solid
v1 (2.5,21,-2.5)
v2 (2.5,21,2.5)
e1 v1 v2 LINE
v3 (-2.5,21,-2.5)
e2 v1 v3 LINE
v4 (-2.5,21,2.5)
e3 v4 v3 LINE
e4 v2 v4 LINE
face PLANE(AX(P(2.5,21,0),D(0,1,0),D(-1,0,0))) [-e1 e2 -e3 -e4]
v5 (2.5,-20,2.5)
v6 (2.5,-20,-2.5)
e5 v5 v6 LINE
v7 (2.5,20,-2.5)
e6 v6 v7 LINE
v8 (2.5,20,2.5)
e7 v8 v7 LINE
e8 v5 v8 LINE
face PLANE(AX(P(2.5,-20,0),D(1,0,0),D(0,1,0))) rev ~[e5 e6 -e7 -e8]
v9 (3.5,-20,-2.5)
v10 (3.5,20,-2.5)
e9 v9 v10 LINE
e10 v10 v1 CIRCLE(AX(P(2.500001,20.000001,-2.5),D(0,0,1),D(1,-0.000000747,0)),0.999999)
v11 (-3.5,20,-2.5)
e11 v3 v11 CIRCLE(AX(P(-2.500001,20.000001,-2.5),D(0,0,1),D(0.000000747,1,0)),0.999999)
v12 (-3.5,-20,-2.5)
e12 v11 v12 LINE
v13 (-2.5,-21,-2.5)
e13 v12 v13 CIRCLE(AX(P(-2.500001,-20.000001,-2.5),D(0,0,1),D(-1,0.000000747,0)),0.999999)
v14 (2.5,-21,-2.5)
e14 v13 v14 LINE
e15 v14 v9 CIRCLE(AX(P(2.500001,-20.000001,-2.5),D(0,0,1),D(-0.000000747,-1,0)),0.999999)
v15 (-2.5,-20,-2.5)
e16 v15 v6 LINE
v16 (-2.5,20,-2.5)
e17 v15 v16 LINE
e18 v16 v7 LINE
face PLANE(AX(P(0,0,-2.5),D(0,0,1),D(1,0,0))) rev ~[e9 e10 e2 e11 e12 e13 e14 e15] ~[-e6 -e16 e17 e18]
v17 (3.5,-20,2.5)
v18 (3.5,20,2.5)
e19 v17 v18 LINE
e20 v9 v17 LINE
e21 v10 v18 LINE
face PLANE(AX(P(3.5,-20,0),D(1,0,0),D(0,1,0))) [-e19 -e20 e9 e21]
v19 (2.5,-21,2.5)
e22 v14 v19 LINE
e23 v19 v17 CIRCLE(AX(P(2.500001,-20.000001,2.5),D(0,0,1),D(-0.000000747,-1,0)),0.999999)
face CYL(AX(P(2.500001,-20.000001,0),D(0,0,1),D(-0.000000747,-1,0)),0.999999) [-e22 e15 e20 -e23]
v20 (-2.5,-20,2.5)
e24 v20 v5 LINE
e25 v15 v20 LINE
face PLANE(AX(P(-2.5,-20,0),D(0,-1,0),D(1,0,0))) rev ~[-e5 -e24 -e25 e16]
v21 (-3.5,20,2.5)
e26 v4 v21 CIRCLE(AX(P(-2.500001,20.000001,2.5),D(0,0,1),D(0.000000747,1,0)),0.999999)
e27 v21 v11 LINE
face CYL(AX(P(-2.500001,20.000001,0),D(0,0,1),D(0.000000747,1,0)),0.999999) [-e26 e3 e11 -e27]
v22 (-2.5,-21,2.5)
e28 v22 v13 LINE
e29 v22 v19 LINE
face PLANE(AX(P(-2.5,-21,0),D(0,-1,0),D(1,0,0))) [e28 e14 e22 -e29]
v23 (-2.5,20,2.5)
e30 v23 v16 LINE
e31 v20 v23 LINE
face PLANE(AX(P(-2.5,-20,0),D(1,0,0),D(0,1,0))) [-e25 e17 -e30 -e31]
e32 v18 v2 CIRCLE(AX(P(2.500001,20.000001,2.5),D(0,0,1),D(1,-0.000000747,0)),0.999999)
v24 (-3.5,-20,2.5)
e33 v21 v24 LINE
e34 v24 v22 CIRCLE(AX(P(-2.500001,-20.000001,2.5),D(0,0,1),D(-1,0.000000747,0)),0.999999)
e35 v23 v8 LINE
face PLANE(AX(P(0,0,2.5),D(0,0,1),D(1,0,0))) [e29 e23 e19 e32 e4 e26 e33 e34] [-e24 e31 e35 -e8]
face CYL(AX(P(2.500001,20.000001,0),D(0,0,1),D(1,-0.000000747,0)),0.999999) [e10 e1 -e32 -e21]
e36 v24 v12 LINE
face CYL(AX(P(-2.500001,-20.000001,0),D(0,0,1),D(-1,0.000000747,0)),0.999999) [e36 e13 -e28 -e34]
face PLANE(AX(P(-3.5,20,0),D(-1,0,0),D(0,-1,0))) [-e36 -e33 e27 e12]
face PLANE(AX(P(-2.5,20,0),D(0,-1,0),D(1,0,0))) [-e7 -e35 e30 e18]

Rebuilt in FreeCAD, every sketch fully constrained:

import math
import FreeCAD as App
import Part
import Sketcher
from FreeCAD import Vector

doc = App.newDocument("Part")
body = doc.addObject("PartDesign::Body", "Body")

sketch1 = body.newObject("Sketcher::SketchObject", "Sketch")
sketch1.AttachmentSupport = (doc.getObject("XY_Plane"), [""])
sketch1.MapMode = "FlatFace"
sketch1.addGeometry([
    Part.LineSegment(Vector(-2.5, -21, 0), Vector(2.5, -21, 0)),
    Part.ArcOfCircle(Part.Circle(Vector(2.500001, -20.000001, 0), Vector(0, 0, 1), 0.999999), math.radians(-90.000043), math.radians(0.000043)),
    Part.LineSegment(Vector(3.5, -20, 0), Vector(3.5, 20, 0)),
    Part.ArcOfCircle(Part.Circle(Vector(2.500001, 20.000001, 0), Vector(0, 0, 1), 0.999999), math.radians(-0.000043), math.radians(90.000043)),
    Part.LineSegment(Vector(2.5, 21, 0), Vector(-2.5, 21, 0)),
    Part.ArcOfCircle(Part.Circle(Vector(-2.500001, 20.000001, 0), Vector(0, 0, 1), 0.999999), math.radians(89.999957), math.radians(180.000043)),
    Part.LineSegment(Vector(-3.5, 20, 0), Vector(-3.5, -20, 0)),
    Part.ArcOfCircle(Part.Circle(Vector(-2.500001, -20.000001, 0), Vector(0, 0, 1), 0.999999), math.radians(179.999957), math.radians(270.000043)),
    Part.LineSegment(Vector(2.5, -20, 0), Vector(-2.5, -20, 0)),
    Part.LineSegment(Vector(-2.5, -20, 0), Vector(-2.5, 20, 0)),
    Part.LineSegment(Vector(-2.5, 20, 0), Vector(2.5, 20, 0)),
    Part.LineSegment(Vector(2.5, 20, 0), Vector(2.5, -20, 0)),
], False)
sketch1.addConstraint([
    Sketcher.Constraint("Tangent", 0, 2, 1, 1),
    Sketcher.Constraint("Tangent", 1, 2, 2, 1),
    Sketcher.Constraint("Tangent", 2, 2, 3, 1),
    Sketcher.Constraint("Tangent", 3, 2, 4, 1),
    Sketcher.Constraint("Tangent", 4, 2, 5, 1),
    Sketcher.Constraint("Tangent", 5, 2, 6, 1),
    Sketcher.Constraint("Tangent", 6, 2, 7, 1),
    Sketcher.Constraint("Tangent", 7, 2, 0, 1),
    Sketcher.Constraint("Coincident", 8, 2, 9, 1),
    Sketcher.Constraint("Coincident", 9, 2, 10, 1),
    Sketcher.Constraint("Coincident", 10, 2, 11, 1),
    Sketcher.Constraint("Coincident", 11, 2, 8, 1),
    Sketcher.Constraint("Horizontal", 0),
    Sketcher.Constraint("Vertical", 2),
    Sketcher.Constraint("Horizontal", 4),
    Sketcher.Constraint("Vertical", 6),
    Sketcher.Constraint("Horizontal", 8),
    Sketcher.Constraint("Vertical", 9),
    Sketcher.Constraint("Horizontal", 10),
    Sketcher.Constraint("Vertical", 11),
    Sketcher.Constraint("Coincident", 8, 2, 7, 3),
    Sketcher.Constraint("Coincident", 9, 2, 5, 3),
    Sketcher.Constraint("Coincident", 10, 2, 3, 3),
    Sketcher.Constraint("Equal", 1, 3),
    Sketcher.Constraint("Symmetric", 1, 3, 5, 3, -1, 1),
    Sketcher.Constraint("Radius", 1, 0.999999),
    Sketcher.Constraint("DistanceX", 0, 1, 0, 2, 5.0),
    Sketcher.Constraint("DistanceY", 2, 1, 2, 2, 40.0),
])
pad1 = body.newObject("PartDesign::Pad", "Pad")
pad1.Profile = sketch1
pad1.Length = 5
pad1.Midplane = True

doc.recompute()
